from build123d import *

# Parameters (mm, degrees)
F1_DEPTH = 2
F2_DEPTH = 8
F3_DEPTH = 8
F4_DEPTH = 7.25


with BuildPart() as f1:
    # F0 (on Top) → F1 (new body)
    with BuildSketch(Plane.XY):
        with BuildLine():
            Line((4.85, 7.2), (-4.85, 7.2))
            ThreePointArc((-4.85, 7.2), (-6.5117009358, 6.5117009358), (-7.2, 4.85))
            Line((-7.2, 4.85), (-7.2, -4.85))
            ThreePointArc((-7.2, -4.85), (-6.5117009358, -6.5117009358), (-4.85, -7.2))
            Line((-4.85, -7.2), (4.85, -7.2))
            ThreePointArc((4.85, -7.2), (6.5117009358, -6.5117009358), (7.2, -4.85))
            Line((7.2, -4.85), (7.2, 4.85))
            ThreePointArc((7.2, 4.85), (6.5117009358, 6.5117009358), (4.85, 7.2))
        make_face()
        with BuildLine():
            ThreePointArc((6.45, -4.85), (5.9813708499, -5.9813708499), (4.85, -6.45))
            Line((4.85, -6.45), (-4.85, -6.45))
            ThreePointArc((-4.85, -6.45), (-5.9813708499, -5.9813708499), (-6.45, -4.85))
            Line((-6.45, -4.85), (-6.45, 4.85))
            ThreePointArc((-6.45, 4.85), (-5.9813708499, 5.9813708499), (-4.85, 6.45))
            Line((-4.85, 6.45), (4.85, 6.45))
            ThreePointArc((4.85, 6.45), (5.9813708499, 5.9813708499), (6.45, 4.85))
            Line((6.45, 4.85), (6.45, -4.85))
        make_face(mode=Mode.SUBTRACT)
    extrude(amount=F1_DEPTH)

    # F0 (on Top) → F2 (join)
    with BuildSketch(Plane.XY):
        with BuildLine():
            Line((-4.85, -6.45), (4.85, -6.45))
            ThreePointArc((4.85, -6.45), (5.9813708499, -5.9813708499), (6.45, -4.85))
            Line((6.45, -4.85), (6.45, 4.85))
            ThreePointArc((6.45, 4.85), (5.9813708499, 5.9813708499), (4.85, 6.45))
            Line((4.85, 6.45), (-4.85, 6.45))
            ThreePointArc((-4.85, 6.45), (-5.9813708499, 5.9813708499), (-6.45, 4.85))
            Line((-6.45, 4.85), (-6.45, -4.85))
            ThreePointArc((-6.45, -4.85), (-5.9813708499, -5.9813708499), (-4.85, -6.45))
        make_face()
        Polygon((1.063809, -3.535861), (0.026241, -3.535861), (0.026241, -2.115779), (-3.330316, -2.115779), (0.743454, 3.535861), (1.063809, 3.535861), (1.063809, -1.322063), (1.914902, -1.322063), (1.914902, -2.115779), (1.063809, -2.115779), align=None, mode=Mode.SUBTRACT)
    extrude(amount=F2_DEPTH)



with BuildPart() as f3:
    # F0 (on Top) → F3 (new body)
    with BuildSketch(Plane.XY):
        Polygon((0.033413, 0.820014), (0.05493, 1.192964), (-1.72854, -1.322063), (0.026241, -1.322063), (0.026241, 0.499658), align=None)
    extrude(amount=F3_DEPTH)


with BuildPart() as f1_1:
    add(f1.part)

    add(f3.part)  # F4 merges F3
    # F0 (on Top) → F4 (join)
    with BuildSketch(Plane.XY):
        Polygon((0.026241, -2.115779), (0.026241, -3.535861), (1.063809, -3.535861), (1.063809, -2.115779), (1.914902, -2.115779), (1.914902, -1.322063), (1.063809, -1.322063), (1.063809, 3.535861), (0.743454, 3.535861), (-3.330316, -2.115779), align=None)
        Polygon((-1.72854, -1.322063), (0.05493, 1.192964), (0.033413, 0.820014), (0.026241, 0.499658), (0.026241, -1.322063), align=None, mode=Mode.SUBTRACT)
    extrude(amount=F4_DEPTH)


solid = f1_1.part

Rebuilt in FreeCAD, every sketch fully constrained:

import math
import FreeCAD as App
import Part
import Sketcher
Q = App.Units.Quantity

doc = App.newDocument("Part")
params = doc.addObject("Spreadsheet::Sheet", "Params")
for row, (alias, value) in enumerate([
    ("sketch1_radius", "1.6 mm"),
    ("sketch1_radius2", "2.35 mm"),
    ("sketch1_width", "9.7 mm"),
    ("pad1_length", "2 mm"),
    ("sketch2_radius", "1.6 mm"),
    ("sketch2_width", "9.7 mm"),
    ("pad2_length", "8 mm"),
    ("pad3_length", "8 mm"),
    ("pad4_length", "7.25 mm"),
], start=1):
    params.set(f"A{row}", alias)
    params.set(f"B{row}", "=" + value)
    params.setAlias(f"B{row}", alias)

body = doc.addObject("PartDesign::Body", "Body")

# Sketch on XY plane
sketch1 = body.newObject("Sketcher::SketchObject", "Sketch")
sketch1.AttachmentSupport = (doc.getObject("XY_Plane"), [""])
sketch1.MapMode = "FlatFace"
sketch1.addGeometry(Part.LineSegment(App.Vector(4.8, 7.2, 0), App.Vector(-4.8, 7.2, 0)), False)
sketch1.addGeometry(Part.ArcOfCircle(Part.Circle(App.Vector(-4.8, 4.8, 0), App.Vector(0, 0, 1), 2.4), math.radians(90), math.radians(180)), False)
sketch1.addGeometry(Part.LineSegment(App.Vector(-7.2, 4.8, 0), App.Vector(-7.2, -4.8, 0)), False)
sketch1.addGeometry(Part.ArcOfCircle(Part.Circle(App.Vector(-4.8, -4.8, 0), App.Vector(0, 0, 1), 2.4), math.radians(180), math.radians(270)), False)
sketch1.addGeometry(Part.LineSegment(App.Vector(-4.8, -7.2, 0), App.Vector(4.8, -7.2, 0)), False)
sketch1.addGeometry(Part.ArcOfCircle(Part.Circle(App.Vector(4.8, -4.8, 0), App.Vector(0, 0, 1), 2.4), math.radians(-90), math.radians(0)), False)
sketch1.addGeometry(Part.LineSegment(App.Vector(7.2, -4.8, 0), App.Vector(7.2, 4.8, 0)), False)
sketch1.addGeometry(Part.ArcOfCircle(Part.Circle(App.Vector(4.8, 4.8, 0), App.Vector(0, 0, 1), 2.4), math.radians(0), math.radians(90)), False)
sketch1.addGeometry(Part.LineSegment(App.Vector(6.5, 4.8, 0), App.Vector(6.5, -4.8, 0)), False)
sketch1.addGeometry(Part.ArcOfCircle(Part.Circle(App.Vector(4.8, -4.8, 0), App.Vector(0, 0, 1), 1.6), math.radians(-90), math.radians(0)), False)
sketch1.addGeometry(Part.LineSegment(App.Vector(4.8, -6.5, 0), App.Vector(-4.8, -6.5, 0)), False)
sketch1.addGeometry(Part.ArcOfCircle(Part.Circle(App.Vector(-4.8, -4.8, 0), App.Vector(0, 0, 1), 1.6), math.radians(180), math.radians(270)), False)
sketch1.addGeometry(Part.LineSegment(App.Vector(-6.5, -4.8, 0), App.Vector(-6.5, 4.8, 0)), False)
sketch1.addGeometry(Part.ArcOfCircle(Part.Circle(App.Vector(-4.8, 4.8, 0), App.Vector(0, 0, 1), 1.6), math.radians(90), math.radians(180)), False)
sketch1.addGeometry(Part.LineSegment(App.Vector(-4.8, 6.5, 0), App.Vector(4.8, 6.5, 0)), False)
sketch1.addGeometry(Part.ArcOfCircle(Part.Circle(App.Vector(4.8, 4.8, 0), App.Vector(0, 0, 1), 1.6), math.radians(0), math.radians(90)), False)
sketch1.addConstraint(Sketcher.Constraint("Tangent", 0, 2, 1, 1))
sketch1.addConstraint(Sketcher.Constraint("Tangent", 1, 2, 2, 1))
sketch1.addConstraint(Sketcher.Constraint("Tangent", 2, 2, 3, 1))
sketch1.addConstraint(Sketcher.Constraint("Tangent", 3, 2, 4, 1))
sketch1.addConstraint(Sketcher.Constraint("Tangent", 4, 2, 5, 1))
sketch1.addConstraint(Sketcher.Constraint("Tangent", 5, 2, 6, 1))
sketch1.addConstraint(Sketcher.Constraint("Tangent", 6, 2, 7, 1))
sketch1.addConstraint(Sketcher.Constraint("Tangent", 7, 2, 0, 1))
sketch1.addConstraint(Sketcher.Constraint("Tangent", 8, 2, 9, 2))
sketch1.addConstraint(Sketcher.Constraint("Tangent", 9, 1, 10, 1))
sketch1.addConstraint(Sketcher.Constraint("Tangent", 10, 2, 11, 2))
sketch1.addConstraint(Sketcher.Constraint("Tangent", 11, 1, 12, 1))
sketch1.addConstraint(Sketcher.Constraint("Tangent", 12, 2, 13, 2))
sketch1.addConstraint(Sketcher.Constraint("Tangent", 13, 1, 14, 1))
sketch1.addConstraint(Sketcher.Constraint("Tangent", 14, 2, 15, 2))
sketch1.addConstraint(Sketcher.Constraint("Tangent", 15, 1, 8, 1))
sketch1.addConstraint(Sketcher.Constraint("Horizontal", 0))
sketch1.addConstraint(Sketcher.Constraint("Vertical", 2))
sketch1.addConstraint(Sketcher.Constraint("Horizontal", 4))
sketch1.addConstraint(Sketcher.Constraint("Vertical", 6))
sketch1.addConstraint(Sketcher.Constraint("Vertical", 8))
sketch1.addConstraint(Sketcher.Constraint("Horizontal", 10))
sketch1.addConstraint(Sketcher.Constraint("Vertical", 12))
sketch1.addConstraint(Sketcher.Constraint("Horizontal", 14))
sketch1.addConstraint(Sketcher.Constraint("Coincident", 9, 3, 5, 3))
sketch1.addConstraint(Sketcher.Constraint("Coincident", 11, 3, 3, 3))
sketch1.addConstraint(Sketcher.Constraint("Coincident", 13, 3, 1, 3))
sketch1.addConstraint(Sketcher.Constraint("Equal", 1, 3))
sketch1.addConstraint(Sketcher.Constraint("Equal", 3, 5))
sketch1.addConstraint(Sketcher.Constraint("Equal", 5, 7))
sketch1.addConstraint(Sketcher.Constraint("Equal", 13, 15))
sketch1.addConstraint(Sketcher.Constraint("Symmetric", 1, 3, 5, 3, -1, 1))
sketch1.addConstraint(Sketcher.Constraint("Equal", 14, 2))
sketch1.addConstraint(Sketcher.Constraint("Radius", 9, Q("1.6 mm")))
sketch1.addConstraint(Sketcher.Constraint("Radius", 1, Q("2.35 mm")))
sketch1.addConstraint(Sketcher.Constraint("DistanceX", 0, 2, 0, 1, Q("9.7 mm")))
sketch1.setExpression("Constraints[33]", "Params.sketch1_radius")
sketch1.setExpression("Constraints[34]", "Params.sketch1_radius2")
sketch1.setExpression("Constraints[35]", "Params.sketch1_width")
pad1 = body.newObject("PartDesign::Pad", "Pad")
pad1.Profile = sketch1
pad1.setExpression("Length", "Params.pad1_length")

# Sketch on XY plane
sketch2 = body.newObject("Sketcher::SketchObject", "Sketch001")
sketch2.AttachmentSupport = (doc.getObject("XY_Plane"), [""])
sketch2.MapMode = "FlatFace"
sketch2.addGeometry(Part.LineSegment(App.Vector(-4.85, -6.45, 0), App.Vector(4.85, -6.45, 0)), False)
sketch2.addGeometry(Part.ArcOfCircle(Part.Circle(App.Vector(4.85, -4.85, 0), App.Vector(0, 0, 1), 1.6), math.radians(-90), math.radians(0)), False)
sketch2.addGeometry(Part.LineSegment(App.Vector(6.45, -4.85, 0), App.Vector(6.45, 4.85, 0)), False)
sketch2.addGeometry(Part.ArcOfCircle(Part.Circle(App.Vector(4.85, 4.85, 0), App.Vector(0, 0, 1), 1.6), math.radians(0), math.radians(90)), False)
sketch2.addGeometry(Part.LineSegment(App.Vector(4.85, 6.45, 0), App.Vector(-4.85, 6.45, 0)), False)
sketch2.addGeometry(Part.ArcOfCircle(Part.Circle(App.Vector(-4.85, 4.85, 0), App.Vector(0, 0, 1), 1.6), math.radians(90), math.radians(180)), False)
sketch2.addGeometry(Part.LineSegment(App.Vector(-6.45, 4.85, 0), App.Vector(-6.45, -4.85, 0)), False)
sketch2.addGeometry(Part.ArcOfCircle(Part.Circle(App.Vector(-4.85, -4.85, 0), App.Vector(0, 0, 1), 1.6), math.radians(180), math.radians(270)), False)
sketch2.addGeometry(Part.LineSegment(App.Vector(1.06, -2.12, 0), App.Vector(1.06, -3.54, 0)), False)
sketch2.addGeometry(Part.LineSegment(App.Vector(1.06, -3.54, 0), App.Vector(0.03, -3.54, 0)), False)
sketch2.addGeometry(Part.LineSegment(App.Vector(0.03, -3.54, 0), App.Vector(0.03, -2.12, 0)), False)
sketch2.addGeometry(Part.LineSegment(App.Vector(0.03, -2.12, 0), App.Vector(-3.33, -2.12, 0)), False)
sketch2.addGeometry(Part.LineSegment(App.Vector(-3.33, -2.12, 0), App.Vector(0.74, 3.54, 0)), False)
sketch2.addGeometry(Part.LineSegment(App.Vector(0.74, 3.54, 0), App.Vector(1.06, 3.54, 0)), False)
sketch2.addGeometry(Part.LineSegment(App.Vector(1.06, 3.54, 0), App.Vector(1.06, -1.32, 0)), False)
sketch2.addGeometry(Part.LineSegment(App.Vector(1.06, -1.32, 0), App.Vector(1.91, -1.32, 0)), False)
sketch2.addGeometry(Part.LineSegment(App.Vector(1.91, -1.32, 0), App.Vector(1.91, -2.12, 0)), False)
sketch2.addGeometry(Part.LineSegment(App.Vector(1.91, -2.12, 0), App.Vector(1.06, -2.12, 0)), False)
sketch2.addConstraint(Sketcher.Constraint("Tangent", 0, 2, 1, 1))
sketch2.addConstraint(Sketcher.Constraint("Tangent", 1, 2, 2, 1))
sketch2.addConstraint(Sketcher.Constraint("Tangent", 2, 2, 3, 1))
sketch2.addConstraint(Sketcher.Constraint("Tangent", 3, 2, 4, 1))
sketch2.addConstraint(Sketcher.Constraint("Tangent", 4, 2, 5, 1))
sketch2.addConstraint(Sketcher.Constraint("Tangent", 5, 2, 6, 1))
sketch2.addConstraint(Sketcher.Constraint("Tangent", 6, 2, 7, 1))
sketch2.addConstraint(Sketcher.Constraint("Tangent", 7, 2, 0, 1))
sketch2.addConstraint(Sketcher.Constraint("Coincident", 8, 2, 9, 1))
sketch2.addConstraint(Sketcher.Constraint("Coincident", 9, 2, 10, 1))
sketch2.addConstraint(Sketcher.Constraint("Coincident", 10, 2, 11, 1))
sketch2.addConstraint(Sketcher.Constraint("Coincident", 11, 2, 12, 1))
sketch2.addConstraint(Sketcher.Constraint("Coincident", 12, 2, 13, 1))
sketch2.addConstraint(Sketcher.Constraint("Coincident", 13, 2, 14, 1))
sketch2.addConstraint(Sketcher.Constraint("Coincident", 14, 2, 15, 1))
sketch2.addConstraint(Sketcher.Constraint("Coincident", 15, 2, 16, 1))
sketch2.addConstraint(Sketcher.Constraint("Coincident", 16, 2, 17, 1))
sketch2.addConstraint(Sketcher.Constraint("Coincident", 17, 2, 8, 1))
sketch2.addConstraint(Sketcher.Constraint("Horizontal", 0))
sketch2.addConstraint(Sketcher.Constraint("Vertical", 2))
sketch2.addConstraint(Sketcher.Constraint("Horizontal", 4))
sketch2.addConstraint(Sketcher.Constraint("Vertical", 6))
sketch2.addConstraint(Sketcher.Constraint("Vertical", 8))
sketch2.addConstraint(Sketcher.Constraint("Horizontal", 9))
sketch2.addConstraint(Sketcher.Constraint("Vertical", 10))
sketch2.addConstraint(Sketcher.Constraint("Horizontal", 11))
sketch2.addConstraint(Sketcher.Constraint("Horizontal", 13))
sketch2.addConstraint(Sketcher.Constraint("Vertical", 14))
sketch2.addConstraint(Sketcher.Constraint("Horizontal", 15))
sketch2.addConstraint(Sketcher.Constraint("Vertical", 16))
sketch2.addConstraint(Sketcher.Constraint("Horizontal", 17))
sketch2.addConstraint(Sketcher.Constraint("Equal", 1, 3))
sketch2.addConstraint(Sketcher.Constraint("Equal", 3, 5))
sketch2.addConstraint(Sketcher.Constraint("Equal", 5, 7))
sketch2.addConstraint(Sketcher.Constraint("Symmetric", 1, 3, 5, 3, -1, 1))
sketch2.addConstraint(Sketcher.Constraint("Symmetric", 8, 2, 13, 2, -1))
sketch2.addConstraint(Sketcher.Constraint("Horizontal", 11, 2, 16, 2))
sketch2.addConstraint(Sketcher.Constraint("Equal", 4, 2))
sketch2.addConstraint(Sketcher.Constraint("Radius", 1, Q("1.6 mm")))
sketch2.addConstraint(Sketcher.Constraint("DistanceX", 0, 1, 0, 2, Q("9.7 mm")))
sketch2.addConstraint(Sketcher.Constraint("DistanceY", 8, 2, 14, 2, Q("2.213798 mm")))
sketch2.addConstraint(Sketcher.Constraint("DistanceX", 9, 2, 9, 1, Q("1.037568 mm")))
sketch2.addConstraint(Sketcher.Constraint("DistanceX", 11, 2, 11, 1, Q("3.356557 mm")))
sketch2.addConstraint(Sketcher.Constraint("DistanceX", 13, 1, 13, 2, Q("0.320355 mm")))
sketch2.addConstraint(Sketcher.Constraint("DistanceX", 15, 1, 15, 2, Q("0.851093 mm")))
sketch2.addConstraint(Sketcher.Constraint("DistanceY", 8, 2, 8, 1, Q("1.420082 mm")))
sketch2.addConstraint(Sketcher.Constraint("DistanceY", 14, 2, 14, 1, Q("4.857924 mm")))
sketch2.addConstraint(Sketcher.Constraint("DistanceX", -1, 1, 8, 2, Q("1.063809 mm")))
sketch2.setExpression("Constraints[38]", "Params.sketch2_radius")
sketch2.setExpression("Constraints[39]", "Params.sketch2_width")
pad2 = body.newObject("PartDesign::Pad", "Pad001")
pad2.Profile = sketch2
pad2.setExpression("Length", "Params.pad2_length")
body2 = doc.addObject("PartDesign::Body", "Body001")

# Sketch on XY plane
sketch3 = body2.newObject("Sketcher::SketchObject", "Sketch002")
sketch3.AttachmentSupport = (doc.getObject("XY_Plane001"), [""])
sketch3.MapMode = "FlatFace"
sketch3.addGeometry(Part.LineSegment(App.Vector(0.03, 0.82, 0), App.Vector(0.05, 1.19, 0)), False)
sketch3.addGeometry(Part.LineSegment(App.Vector(0.05, 1.19, 0), App.Vector(-1.73, -1.32, 0)), False)
sketch3.addGeometry(Part.LineSegment(App.Vector(-1.73, -1.32, 0), App.Vector(0.03, -1.32, 0)), False)
sketch3.addGeometry(Part.LineSegment(App.Vector(0.03, -1.32, 0), App.Vector(0.03, 0.5, 0)), False)
sketch3.addGeometry(Part.LineSegment(App.Vector(0.03, 0.5, 0), App.Vector(0.03, 0.82, 0)), False)
sketch3.addConstraint(Sketcher.Constraint("Coincident", 0, 2, 1, 1))
sketch3.addConstraint(Sketcher.Constraint("Coincident", 1, 2, 2, 1))
sketch3.addConstraint(Sketcher.Constraint("Coincident", 2, 2, 3, 1))
sketch3.addConstraint(Sketcher.Constraint("Coincident", 3, 2, 4, 1))
sketch3.addConstraint(Sketcher.Constraint("Coincident", 4, 2, 0, 1))
sketch3.addConstraint(Sketcher.Constraint("Horizontal", 2))
sketch3.addConstraint(Sketcher.Constraint("Vertical", 3))
sketch3.addConstraint(Sketcher.Constraint("Distance", 1, Q("3.083201 mm")))
sketch3.addConstraint(Sketcher.Constraint("DistanceX", 2, 1, 2, 2, Q("1.754781 mm")))
sketch3.addConstraint(Sketcher.Constraint("DistanceY", 3, 1, 3, 2, Q("1.821721 mm")))
sketch3.addConstraint(Sketcher.Constraint("Distance", 0, Q("0.37357 mm")))
sketch3.addConstraint(Sketcher.Constraint("DistanceX", -1, 1, 0, 2, Q("0.05493 mm")))
sketch3.addConstraint(Sketcher.Constraint("DistanceX", 1, 2, -1, 1, Q("1.72854 mm")))
sketch3.addConstraint(Sketcher.Constraint("DistanceX", 3, 2, 4, 2, Q("0.007172 mm")))
sketch3.addConstraint(Sketcher.Constraint("DistanceY", -1, 1, 0, 2, Q("1.192964 mm")))
pad3 = body2.newObject("PartDesign::Pad", "Pad002")
pad3.Profile = sketch3
pad3.setExpression("Length", "Params.pad3_length")
body.AllowCompound = True
doc.recompute()

boolean = body.newObject("PartDesign::Boolean", "Boolean")
boolean.Type = "Fuse"
boolean.addObjects([body2])

# Sketch on XY plane
sketch4 = body.newObject("Sketcher::SketchObject", "Sketch003")
sketch4.AttachmentSupport = (doc.getObject("XY_Plane"), [""])
sketch4.MapMode = "FlatFace"
sketch4.addGeometry(Part.LineSegment(App.Vector(0.03, -2.12, 0), App.Vector(0.03, -3.54, 0)), False)
sketch4.addGeometry(Part.LineSegment(App.Vector(0.03, -3.54, 0), App.Vector(1.06, -3.54, 0)), False)
sketch4.addGeometry(Part.LineSegment(App.Vector(1.06, -3.54, 0), App.Vector(1.06, -2.12, 0)), False)
sketch4.addGeometry(Part.LineSegment(App.Vector(1.06, -2.12, 0), App.Vector(1.91, -2.12, 0)), False)
sketch4.addGeometry(Part.LineSegment(App.Vector(1.91, -2.12, 0), App.Vector(1.91, -1.32, 0)), False)
sketch4.addGeometry(Part.LineSegment(App.Vector(1.91, -1.32, 0), App.Vector(1.06, -1.32, 0)), False)
sketch4.addGeometry(Part.LineSegment(App.Vector(1.06, -1.32, 0), App.Vector(1.06, 3.54, 0)), False)
sketch4.addGeometry(Part.LineSegment(App.Vector(1.06, 3.54, 0), App.Vector(0.74, 3.54, 0)), False)
sketch4.addGeometry(Part.LineSegment(App.Vector(0.74, 3.54, 0), App.Vector(-3.33, -2.12, 0)), False)
sketch4.addGeometry(Part.LineSegment(App.Vector(-3.33, -2.12, 0), App.Vector(0.03, -2.12, 0)), False)
sketch4.addGeometry(Part.LineSegment(App.Vector(0.03, -1.32, 0), App.Vector(-1.73, -1.32, 0)), False)
sketch4.addGeometry(Part.LineSegment(App.Vector(-1.73, -1.32, 0), App.Vector(0.05, 1.19, 0)), False)
sketch4.addGeometry(Part.LineSegment(App.Vector(0.05, 1.19, 0), App.Vector(0.03, 0.82, 0)), False)
sketch4.addGeometry(Part.LineSegment(App.Vector(0.03, 0.82, 0), App.Vector(0.03, 0.5, 0)), False)
sketch4.addGeometry(Part.LineSegment(App.Vector(0.03, 0.5, 0), App.Vector(0.03, -1.32, 0)), False)
sketch4.addConstraint(Sketcher.Constraint("Coincident", 0, 2, 1, 1))
sketch4.addConstraint(Sketcher.Constraint("Coincident", 1, 2, 2, 1))
sketch4.addConstraint(Sketcher.Constraint("Coincident", 2, 2, 3, 1))
sketch4.addConstraint(Sketcher.Constraint("Coincident", 3, 2, 4, 1))
sketch4.addConstraint(Sketcher.Constraint("Coincident", 4, 2, 5, 1))
sketch4.addConstraint(Sketcher.Constraint("Coincident", 5, 2, 6, 1))
sketch4.addConstraint(Sketcher.Constraint("Coincident", 6, 2, 7, 1))
sketch4.addConstraint(Sketcher.Constraint("Coincident", 7, 2, 8, 1))
sketch4.addConstraint(Sketcher.Constraint("Coincident", 8, 2, 9, 1))
sketch4.addConstraint(Sketcher.Constraint("Coincident", 9, 2, 0, 1))
sketch4.addConstraint(Sketcher.Constraint("Coincident", 10, 2, 11, 1))
sketch4.addConstraint(Sketcher.Constraint("Coincident", 11, 2, 12, 1))
sketch4.addConstraint(Sketcher.Constraint("Coincident", 12, 2, 13, 1))
sketch4.addConstraint(Sketcher.Constraint("Coincident", 13, 2, 14, 1))
sketch4.addConstraint(Sketcher.Constraint("Coincident", 14, 2, 10, 1))
sketch4.addConstraint(Sketcher.Constraint("Vertical", 0))
sketch4.addConstraint(Sketcher.Constraint("Horizontal", 1))
sketch4.addConstraint(Sketcher.Constraint("Vertical", 2))
sketch4.addConstraint(Sketcher.Constraint("Horizontal", 3))
sketch4.addConstraint(Sketcher.Constraint("Vertical", 4))
sketch4.addConstraint(Sketcher.Constraint("Horizontal", 5))
sketch4.addConstraint(Sketcher.Constraint("Vertical", 6))
sketch4.addConstraint(Sketcher.Constraint("Horizontal", 7))
sketch4.addConstraint(Sketcher.Constraint("Horizontal", 9))
sketch4.addConstraint(Sketcher.Constraint("Horizontal", 10))
sketch4.addConstraint(Sketcher.Constraint("Vertical", 14))
sketch4.addConstraint(Sketcher.Constraint("Symmetric", 1, 2, 6, 2, -1))
sketch4.addConstraint(Sketcher.Constraint("Horizontal", 3, 2, 8, 2))
sketch4.addConstraint(Sketcher.Constraint("Horizontal", 5, 2, 10, 2))
sketch4.addConstraint(Sketcher.Constraint("Vertical", 9, 2, 13, 2))
sketch4.addConstraint(Sketcher.Constraint("Distance", 11, Q("3.083201 mm")))
sketch4.addConstraint(Sketcher.Constraint("DistanceX", 10, 2, 10, 1, Q("1.754781 mm")))
sketch4.addConstraint(Sketcher.Constraint("DistanceY", 14, 2, 14, 1, Q("1.821721 mm")))
sketch4.addConstraint(Sketcher.Constraint("DistanceY", 1, 2, 4, 2, Q("2.213798 mm")))
sketch4.addConstraint(Sketcher.Constraint("Distance", 12, Q("0.37357 mm")))
sketch4.addConstraint(Sketcher.Constraint("DistanceX", 1, 1, 1, 2, Q("1.037568 mm")))
sketch4.addConstraint(Sketcher.Constraint("DistanceX", 3, 1, 3, 2, Q("0.851093 mm")))
sketch4.addConstraint(Sketcher.Constraint("DistanceX", 7, 2, 7, 1, Q("0.320355 mm")))
sketch4.addConstraint(Sketcher.Constraint("DistanceX", 9, 1, 9, 2, Q("3.356557 mm")))
sketch4.addConstraint(Sketcher.Constraint("DistanceY", 0, 2, 0, 1, Q("1.420082 mm")))
sketch4.addConstraint(Sketcher.Constraint("DistanceY", 6, 1, 6, 2, Q("4.857924 mm")))
sketch4.addConstraint(Sketcher.Constraint("DistanceX", -1, 1, 0, 2, Q("0.026241 mm")))
sketch4.addConstraint(Sketcher.Constraint("DistanceX", -1, 1, 11, 2, Q("0.05493 mm")))
sketch4.addConstraint(Sketcher.Constraint("DistanceY", 12, 2, 11, 2, Q("0.37295 mm")))
pad4 = body.newObject("PartDesign::Pad", "Pad003")
pad4.Profile = sketch4
pad4.setExpression("Length", "Params.pad4_length")

doc.recompute()
